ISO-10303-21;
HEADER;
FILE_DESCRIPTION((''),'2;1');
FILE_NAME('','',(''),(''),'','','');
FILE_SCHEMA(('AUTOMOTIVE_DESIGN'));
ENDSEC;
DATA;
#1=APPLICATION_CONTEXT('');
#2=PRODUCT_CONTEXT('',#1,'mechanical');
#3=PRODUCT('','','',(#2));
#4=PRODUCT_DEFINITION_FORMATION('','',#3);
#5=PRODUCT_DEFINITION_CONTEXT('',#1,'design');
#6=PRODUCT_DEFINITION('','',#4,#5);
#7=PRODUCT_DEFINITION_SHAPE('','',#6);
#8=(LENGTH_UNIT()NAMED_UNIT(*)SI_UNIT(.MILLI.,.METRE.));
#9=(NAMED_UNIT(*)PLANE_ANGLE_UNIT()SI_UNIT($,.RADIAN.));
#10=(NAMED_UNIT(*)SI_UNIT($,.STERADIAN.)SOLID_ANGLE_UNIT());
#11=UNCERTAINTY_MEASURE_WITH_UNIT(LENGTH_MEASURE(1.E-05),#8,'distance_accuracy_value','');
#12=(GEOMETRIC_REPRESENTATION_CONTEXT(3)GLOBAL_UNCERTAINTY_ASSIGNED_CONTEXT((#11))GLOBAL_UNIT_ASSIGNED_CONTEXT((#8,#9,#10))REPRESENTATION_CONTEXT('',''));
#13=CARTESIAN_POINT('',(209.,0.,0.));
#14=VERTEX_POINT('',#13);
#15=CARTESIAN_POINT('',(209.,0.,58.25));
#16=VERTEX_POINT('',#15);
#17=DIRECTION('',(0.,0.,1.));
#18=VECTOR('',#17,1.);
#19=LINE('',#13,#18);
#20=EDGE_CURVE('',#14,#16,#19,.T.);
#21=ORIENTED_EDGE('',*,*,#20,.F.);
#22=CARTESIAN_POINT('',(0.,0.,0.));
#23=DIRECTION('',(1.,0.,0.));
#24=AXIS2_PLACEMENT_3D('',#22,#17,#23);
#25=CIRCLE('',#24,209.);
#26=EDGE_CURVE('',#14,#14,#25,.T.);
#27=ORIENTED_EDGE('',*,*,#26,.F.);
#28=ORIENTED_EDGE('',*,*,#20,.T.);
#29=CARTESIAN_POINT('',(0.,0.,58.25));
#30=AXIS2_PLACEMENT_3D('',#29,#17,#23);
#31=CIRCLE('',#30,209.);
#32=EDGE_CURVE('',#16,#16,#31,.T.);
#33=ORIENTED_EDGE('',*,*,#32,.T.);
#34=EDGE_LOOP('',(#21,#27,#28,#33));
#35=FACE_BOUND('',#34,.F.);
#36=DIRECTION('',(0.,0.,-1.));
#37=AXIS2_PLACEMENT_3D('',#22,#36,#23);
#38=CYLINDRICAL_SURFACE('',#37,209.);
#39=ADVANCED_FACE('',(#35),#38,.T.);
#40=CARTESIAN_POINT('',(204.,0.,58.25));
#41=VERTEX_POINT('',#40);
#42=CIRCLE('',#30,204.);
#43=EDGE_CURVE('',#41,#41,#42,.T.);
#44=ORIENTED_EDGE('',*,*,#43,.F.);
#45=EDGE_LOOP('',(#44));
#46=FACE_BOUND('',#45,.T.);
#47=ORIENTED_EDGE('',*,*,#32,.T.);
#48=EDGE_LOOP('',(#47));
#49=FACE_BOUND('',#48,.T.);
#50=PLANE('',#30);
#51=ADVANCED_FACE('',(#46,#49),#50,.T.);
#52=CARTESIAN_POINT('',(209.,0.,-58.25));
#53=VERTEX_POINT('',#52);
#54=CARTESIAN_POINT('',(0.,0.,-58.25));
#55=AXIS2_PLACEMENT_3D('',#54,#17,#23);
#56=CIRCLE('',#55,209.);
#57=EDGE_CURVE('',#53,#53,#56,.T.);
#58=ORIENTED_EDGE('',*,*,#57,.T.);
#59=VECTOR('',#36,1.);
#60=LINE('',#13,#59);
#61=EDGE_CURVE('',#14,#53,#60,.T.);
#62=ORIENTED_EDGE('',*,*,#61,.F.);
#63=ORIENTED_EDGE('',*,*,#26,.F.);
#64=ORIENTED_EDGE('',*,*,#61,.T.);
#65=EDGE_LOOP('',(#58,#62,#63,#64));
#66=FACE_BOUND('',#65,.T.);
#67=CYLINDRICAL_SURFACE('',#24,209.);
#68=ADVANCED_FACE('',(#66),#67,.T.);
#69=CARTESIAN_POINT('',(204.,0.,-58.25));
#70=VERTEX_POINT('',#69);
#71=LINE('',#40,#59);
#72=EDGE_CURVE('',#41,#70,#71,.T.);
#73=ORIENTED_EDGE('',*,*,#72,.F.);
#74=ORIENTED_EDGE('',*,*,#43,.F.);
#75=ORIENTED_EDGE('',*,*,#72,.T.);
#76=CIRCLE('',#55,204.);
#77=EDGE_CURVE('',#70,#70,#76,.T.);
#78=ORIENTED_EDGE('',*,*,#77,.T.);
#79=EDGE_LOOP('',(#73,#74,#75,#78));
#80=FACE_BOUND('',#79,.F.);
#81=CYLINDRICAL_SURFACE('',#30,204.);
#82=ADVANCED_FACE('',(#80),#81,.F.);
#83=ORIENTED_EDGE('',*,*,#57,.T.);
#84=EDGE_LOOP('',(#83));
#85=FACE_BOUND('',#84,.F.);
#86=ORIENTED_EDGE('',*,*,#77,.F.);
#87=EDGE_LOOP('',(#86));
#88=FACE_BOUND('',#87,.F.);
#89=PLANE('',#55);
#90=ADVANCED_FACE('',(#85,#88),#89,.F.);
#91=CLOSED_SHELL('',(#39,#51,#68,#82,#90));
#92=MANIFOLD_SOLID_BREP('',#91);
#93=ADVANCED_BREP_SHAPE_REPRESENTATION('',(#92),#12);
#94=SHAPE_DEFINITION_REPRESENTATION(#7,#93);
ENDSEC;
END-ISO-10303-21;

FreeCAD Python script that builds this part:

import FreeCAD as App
import Part
import Sketcher

V = App.Vector

doc = App.newDocument("Part")
body = doc.addObject("PartDesign::Body", "Body")

# Sketch on XY plane
sketch1 = body.newObject("Sketcher::SketchObject", "Sketch")
sketch1.AttachmentSupport = (doc.getObject("XY_Plane"), [""])
sketch1.MapMode = "FlatFace"
sketch1.addGeometry(Part.Circle(V(0, 0, 0), V(0, 0, 1), 209), False)
sketch1.addConstraint([
    Sketcher.Constraint("Coincident", 0, 3, -1, 1),
    Sketcher.Constraint("Diameter", 0, 418.0),
])
pad1 = body.newObject("PartDesign::Pad", "Pad")
pad1.Profile = sketch1
pad1.Length = 116.5
pad1.Midplane = True

# Sketch on XY plane
sketch2 = body.newObject("Sketcher::SketchObject", "Sketch001")
sketch2.AttachmentSupport = (doc.getObject("XY_Plane"), [""])
sketch2.MapMode = "FlatFace"
sketch2.AttachmentOffset = App.Placement(V(0, 0, 58.25), App.Rotation())
sketch2.addGeometry(Part.Circle(V(0, 0, 0), V(0, 0, 1), 204), False)
sketch2.addConstraint([
    Sketcher.Constraint("Coincident", 0, 3, -1, 1),
    Sketcher.Constraint("Diameter", 0, 408.0),
])
pocket1 = body.newObject("PartDesign::Pocket", "Pocket")
pocket1.Profile = sketch2
pocket1.Type = "ThroughAll"

doc.recompute()
